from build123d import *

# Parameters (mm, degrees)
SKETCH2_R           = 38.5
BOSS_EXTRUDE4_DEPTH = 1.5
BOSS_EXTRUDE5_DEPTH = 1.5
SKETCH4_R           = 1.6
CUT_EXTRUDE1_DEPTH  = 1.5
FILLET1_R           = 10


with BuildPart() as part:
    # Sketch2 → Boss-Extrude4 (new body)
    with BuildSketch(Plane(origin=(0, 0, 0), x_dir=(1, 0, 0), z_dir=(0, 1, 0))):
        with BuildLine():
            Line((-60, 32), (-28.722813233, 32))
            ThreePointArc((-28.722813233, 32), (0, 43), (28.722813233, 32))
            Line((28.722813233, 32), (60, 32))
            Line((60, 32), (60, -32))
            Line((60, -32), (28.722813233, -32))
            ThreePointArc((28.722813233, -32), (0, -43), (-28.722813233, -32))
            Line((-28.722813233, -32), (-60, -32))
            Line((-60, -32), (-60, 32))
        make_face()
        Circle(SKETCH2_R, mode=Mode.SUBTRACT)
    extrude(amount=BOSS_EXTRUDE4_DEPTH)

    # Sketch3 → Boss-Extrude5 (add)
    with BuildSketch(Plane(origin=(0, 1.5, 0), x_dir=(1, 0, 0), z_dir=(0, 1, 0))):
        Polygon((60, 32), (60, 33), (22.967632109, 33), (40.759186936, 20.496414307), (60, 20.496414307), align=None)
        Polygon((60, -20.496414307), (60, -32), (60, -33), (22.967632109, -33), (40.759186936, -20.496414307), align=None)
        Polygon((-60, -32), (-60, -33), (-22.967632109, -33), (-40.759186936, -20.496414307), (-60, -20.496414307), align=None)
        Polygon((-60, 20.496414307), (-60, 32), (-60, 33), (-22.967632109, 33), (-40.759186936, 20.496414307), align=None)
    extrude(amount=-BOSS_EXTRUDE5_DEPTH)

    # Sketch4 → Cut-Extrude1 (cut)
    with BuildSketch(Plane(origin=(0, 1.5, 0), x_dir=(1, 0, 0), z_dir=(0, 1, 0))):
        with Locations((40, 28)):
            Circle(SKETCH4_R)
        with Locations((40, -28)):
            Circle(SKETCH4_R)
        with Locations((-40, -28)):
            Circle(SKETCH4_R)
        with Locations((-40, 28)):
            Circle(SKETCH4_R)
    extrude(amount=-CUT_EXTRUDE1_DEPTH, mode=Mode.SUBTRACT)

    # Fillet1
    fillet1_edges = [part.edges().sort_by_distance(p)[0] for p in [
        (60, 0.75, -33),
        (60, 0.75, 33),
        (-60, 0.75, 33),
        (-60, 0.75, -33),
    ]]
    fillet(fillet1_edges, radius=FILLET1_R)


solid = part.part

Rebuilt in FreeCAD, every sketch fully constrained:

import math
import FreeCAD as App
import Part
import Sketcher
from FreeCAD import Vector


def edges_at(feature, points):
    """Names of the edges that pass closest to the given points."""
    edges = feature.Shape.Edges
    near = lambda p: min(range(len(edges)), key=lambda i: edges[i].distToShape(Part.Vertex(*p))[0])
    return sorted({f"Edge{near(p) + 1}" for p in points})

doc = App.newDocument("Part")
body = doc.addObject("PartDesign::Body", "Body")

sketch1 = doc.addObject("Sketcher::SketchObject", "Sketch")
body.addObject(sketch1)
sketch1.AttachmentSupport = (doc.XZ_Plane, [""])
sketch1.MapMode = "FlatFace"
sketch1.addGeometry(Part.LineSegment(Vector(-28.722813, -32, 0), Vector(-60, -32, 0)), False)
sketch1.addGeometry(Part.LineSegment(Vector(-60, -32, 0), Vector(-60, 32, 0)), False)
sketch1.addGeometry(Part.LineSegment(Vector(-60, 32, 0), Vector(-28.722813, 32, 0)), False)
sketch1.addGeometry(Part.ArcOfCircle(Part.Circle(Vector(0, 0, 0), Vector(0, 0, 1), 43), math.radians(48.089234), math.radians(131.910766)), False)
sketch1.addGeometry(Part.LineSegment(Vector(28.722813, 32, 0), Vector(60, 32, 0)), False)
sketch1.addGeometry(Part.LineSegment(Vector(60, 32, 0), Vector(60, -32, 0)), False)
sketch1.addGeometry(Part.LineSegment(Vector(60, -32, 0), Vector(28.722813, -32, 0)), False)
sketch1.addGeometry(Part.ArcOfCircle(Part.Circle(Vector(0, 0, 0), Vector(0, 0, 1), 43), math.radians(-131.910766), math.radians(-48.089234)), False)
sketch1.addGeometry(Part.Circle(Vector(0, 0, 0), Vector(0, 0, 1), 38.5), False)
sketch1.addConstraint(Sketcher.Constraint("Coincident", 0, 2, 1, 1))
sketch1.addConstraint(Sketcher.Constraint("Coincident", 1, 2, 2, 1))
sketch1.addConstraint(Sketcher.Constraint("Coincident", 2, 2, 3, 2))
sketch1.addConstraint(Sketcher.Constraint("Coincident", 3, 1, 4, 1))
sketch1.addConstraint(Sketcher.Constraint("Coincident", 4, 2, 5, 1))
sketch1.addConstraint(Sketcher.Constraint("Coincident", 5, 2, 6, 1))
sketch1.addConstraint(Sketcher.Constraint("Coincident", 6, 2, 7, 2))
sketch1.addConstraint(Sketcher.Constraint("Coincident", 7, 1, 0, 1))
sketch1.addConstraint(Sketcher.Constraint("Horizontal", 0))
sketch1.addConstraint(Sketcher.Constraint("Vertical", 1))
sketch1.addConstraint(Sketcher.Constraint("Horizontal", 2))
sketch1.addConstraint(Sketcher.Constraint("Horizontal", 4))
sketch1.addConstraint(Sketcher.Constraint("Vertical", 5))
sketch1.addConstraint(Sketcher.Constraint("Horizontal", 6))
sketch1.addConstraint(Sketcher.Constraint("Coincident", 3, 3, -1, 1))
sketch1.addConstraint(Sketcher.Constraint("Coincident", 7, 3, -1, 1))
sketch1.addConstraint(Sketcher.Constraint("Coincident", 8, 3, -1, 1))
sketch1.addConstraint(Sketcher.Constraint("Equal", 3, 7))
sketch1.addConstraint(Sketcher.Constraint("Symmetric", 0, 2, 4, 2, -1, 1))
sketch1.addConstraint(Sketcher.Constraint("Horizontal", 2, 2, 3, 1))
sketch1.addConstraint(Sketcher.Constraint("Horizontal", 0, 2, 5, 2))
sketch1.addConstraint(Sketcher.Constraint("Diameter", 8, 77.0))
sketch1.addConstraint(Sketcher.Constraint("Radius", 3, 43.0))
sketch1.addConstraint(Sketcher.Constraint("DistanceY", 1, 1, 1, 2, 64.0))
sketch1.addConstraint(Sketcher.Constraint("DistanceX", 0, 2, -1, 1, 60.0))
pad1 = doc.addObject("PartDesign::Pad", "Pad")
body.addObject(pad1)
pad1.Profile = sketch1
pad1.Length = 1.5
pad1.Reversed = True

sketch2 = doc.addObject("Sketcher::SketchObject", "Sketch001")
body.addObject(sketch2)
sketch2.AttachmentSupport = (doc.XZ_Plane, [""])
sketch2.MapMode = "FlatFace"
sketch2.AttachmentOffset = App.Placement(Vector(0, 0, -1.5), App.Rotation())
sketch2.addGeometry(Part.LineSegment(Vector(60, -33, 0), Vector(22.967632, -33, 0)), False)
sketch2.addGeometry(Part.LineSegment(Vector(22.967632, -33, 0), Vector(40.759187, -20.496414, 0)), False)
sketch2.addGeometry(Part.LineSegment(Vector(40.759187, -20.496414, 0), Vector(60, -20.496414, 0)), False)
sketch2.addGeometry(Part.LineSegment(Vector(60, -20.496414, 0), Vector(60, -33, 0)), False)
sketch2.addGeometry(Part.LineSegment(Vector(60, 33, 0), Vector(60, 20.496414, 0)), False)
sketch2.addGeometry(Part.LineSegment(Vector(60, 20.496414, 0), Vector(40.759187, 20.496414, 0)), False)
sketch2.addGeometry(Part.LineSegment(Vector(40.759187, 20.496414, 0), Vector(22.967632, 33, 0)), False)
sketch2.addGeometry(Part.LineSegment(Vector(22.967632, 33, 0), Vector(60, 33, 0)), False)
sketch2.addGeometry(Part.LineSegment(Vector(-60, 33, 0), Vector(-22.967632, 33, 0)), False)
sketch2.addGeometry(Part.LineSegment(Vector(-22.967632, 33, 0), Vector(-40.759187, 20.496414, 0)), False)
sketch2.addGeometry(Part.LineSegment(Vector(-40.759187, 20.496414, 0), Vector(-60, 20.496414, 0)), False)
sketch2.addGeometry(Part.LineSegment(Vector(-60, 20.496414, 0), Vector(-60, 33, 0)), False)
sketch2.addGeometry(Part.LineSegment(Vector(-60, -33, 0), Vector(-60, -20.496414, 0)), False)
sketch2.addGeometry(Part.LineSegment(Vector(-60, -20.496414, 0), Vector(-40.759187, -20.496414, 0)), False)
sketch2.addGeometry(Part.LineSegment(Vector(-40.759187, -20.496414, 0), Vector(-22.967632, -33, 0)), False)
sketch2.addGeometry(Part.LineSegment(Vector(-22.967632, -33, 0), Vector(-60, -33, 0)), False)
sketch2.addConstraint(Sketcher.Constraint("Coincident", 0, 2, 1, 1))
sketch2.addConstraint(Sketcher.Constraint("Coincident", 1, 2, 2, 1))
sketch2.addConstraint(Sketcher.Constraint("Coincident", 2, 2, 3, 1))
sketch2.addConstraint(Sketcher.Constraint("Coincident", 3, 2, 0, 1))
sketch2.addConstraint(Sketcher.Constraint("Coincident", 4, 2, 5, 1))
sketch2.addConstraint(Sketcher.Constraint("Coincident", 5, 2, 6, 1))
sketch2.addConstraint(Sketcher.Constraint("Coincident", 6, 2, 7, 1))
sketch2.addConstraint(Sketcher.Constraint("Coincident", 7, 2, 4, 1))
sketch2.addConstraint(Sketcher.Constraint("Coincident", 8, 2, 9, 1))
sketch2.addConstraint(Sketcher.Constraint("Coincident", 9, 2, 10, 1))
sketch2.addConstraint(Sketcher.Constraint("Coincident", 10, 2, 11, 1))
sketch2.addConstraint(Sketcher.Constraint("Coincident", 11, 2, 8, 1))
sketch2.addConstraint(Sketcher.Constraint("Coincident", 12, 2, 13, 1))
sketch2.addConstraint(Sketcher.Constraint("Coincident", 13, 2, 14, 1))
sketch2.addConstraint(Sketcher.Constraint("Coincident", 14, 2, 15, 1))
sketch2.addConstraint(Sketcher.Constraint("Coincident", 15, 2, 12, 1))
sketch2.addConstraint(Sketcher.Constraint("Horizontal", 0))
sketch2.addConstraint(Sketcher.Constraint("Horizontal", 2))
sketch2.addConstraint(Sketcher.Constraint("Vertical", 3))
sketch2.addConstraint(Sketcher.Constraint("Vertical", 4))
sketch2.addConstraint(Sketcher.Constraint("Horizontal", 5))
sketch2.addConstraint(Sketcher.Constraint("Horizontal", 7))
sketch2.addConstraint(Sketcher.Constraint("Horizontal", 8))
sketch2.addConstraint(Sketcher.Constraint("Horizontal", 10))
sketch2.addConstraint(Sketcher.Constraint("Vertical", 11))
sketch2.addConstraint(Sketcher.Constraint("Vertical", 12))
sketch2.addConstraint(Sketcher.Constraint("Horizontal", 13))
sketch2.addConstraint(Sketcher.Constraint("Horizontal", 15))
sketch2.addConstraint(Sketcher.Constraint("Symmetric", 0, 2, 8, 2, -1, 1))
sketch2.addConstraint(Sketcher.Constraint("Symmetric", 1, 2, 9, 2, -1, 1))
sketch2.addConstraint(Sketcher.Constraint("Symmetric", 4, 2, 12, 2, -1, 1))
sketch2.addConstraint(Sketcher.Constraint("Symmetric", 6, 2, 14, 2, -1, 1))
sketch2.addConstraint(Sketcher.Constraint("Symmetric", 6, 2, 8, 2, -2))
sketch2.addConstraint(Sketcher.Constraint("Symmetric", 5, 2, 9, 2, -2))
sketch2.addConstraint(Sketcher.Constraint("Parallel", 6, 14))
sketch2.addConstraint(Sketcher.Constraint("Vertical", 3, 2, 4, 2))
sketch2.addConstraint(Sketcher.Constraint("Vertical", 11, 2, 12, 2))
sketch2.addConstraint(Sketcher.Constraint("DistanceY", 0, 2, -1, 1, 33.0))
sketch2.addConstraint(Sketcher.Constraint("DistanceX", -1, 1, 2, 2, 60.0))
sketch2.addConstraint(Sketcher.Constraint("DistanceX", 0, 2, 0, 1, 37.032368))
sketch2.addConstraint(Sketcher.Constraint("DistanceX", 2, 1, 2, 2, 19.240813))
sketch2.addConstraint(Sketcher.Constraint("DistanceY", 3, 2, 3, 1, 12.503586))
pad2 = doc.addObject("PartDesign::Pad", "Pad001")
body.addObject(pad2)
pad2.Profile = sketch2
pad2.Length = 1.5

sketch3 = doc.addObject("Sketcher::SketchObject", "Sketch002")
body.addObject(sketch3)
sketch3.AttachmentSupport = (doc.XZ_Plane, [""])
sketch3.MapMode = "FlatFace"
sketch3.AttachmentOffset = App.Placement(Vector(0, 0, -1.5), App.Rotation())
sketch3.addGeometry(Part.Circle(Vector(40, -28, 0), Vector(0, 0, 1), 1.6), False)
sketch3.addGeometry(Part.Circle(Vector(40, 28, 0), Vector(0, 0, 1), 1.6), False)
sketch3.addGeometry(Part.Circle(Vector(-40, 28, 0), Vector(0, 0, 1), 1.6), False)
sketch3.addGeometry(Part.Circle(Vector(-40, -28, 0), Vector(0, 0, 1), 1.6), False)
sketch3.addConstraint(Sketcher.Constraint("Equal", 0, 1))
sketch3.addConstraint(Sketcher.Constraint("Equal", 1, 2))
sketch3.addConstraint(Sketcher.Constraint("Equal", 2, 3))
sketch3.addConstraint(Sketcher.Constraint("Symmetric", 0, 3, 2, 3, -1, 1))
sketch3.addConstraint(Sketcher.Constraint("Symmetric", 1, 3, 3, 3, -1, 1))
sketch3.addConstraint(Sketcher.Constraint("Symmetric", 1, 3, 2, 3, -2))
sketch3.addConstraint(Sketcher.Constraint("Diameter", 0, 3.2))
sketch3.addConstraint(Sketcher.Constraint("DistanceX", -1, 1, 0, 3, 40.0))
sketch3.addConstraint(Sketcher.Constraint("DistanceY", 0, 3, -1, 1, 28.0))
pocket1 = doc.addObject("PartDesign::Pocket", "Pocket")
body.addObject(pocket1)
pocket1.Profile = sketch3
pocket1.Length = 1.5
pocket1.Reversed = True
doc.recompute()

fillet = doc.addObject("PartDesign::Fillet", "Fillet")
body.addObject(fillet)
fillet.Base = (pocket1, edges_at(pocket1, [
    (60, 0.75, -33),
    (60, 0.75, 33),
    (-60, 0.75, 33),
    (-60, 0.75, -33),
]))
fillet.Radius = 10

doc.recompute()
